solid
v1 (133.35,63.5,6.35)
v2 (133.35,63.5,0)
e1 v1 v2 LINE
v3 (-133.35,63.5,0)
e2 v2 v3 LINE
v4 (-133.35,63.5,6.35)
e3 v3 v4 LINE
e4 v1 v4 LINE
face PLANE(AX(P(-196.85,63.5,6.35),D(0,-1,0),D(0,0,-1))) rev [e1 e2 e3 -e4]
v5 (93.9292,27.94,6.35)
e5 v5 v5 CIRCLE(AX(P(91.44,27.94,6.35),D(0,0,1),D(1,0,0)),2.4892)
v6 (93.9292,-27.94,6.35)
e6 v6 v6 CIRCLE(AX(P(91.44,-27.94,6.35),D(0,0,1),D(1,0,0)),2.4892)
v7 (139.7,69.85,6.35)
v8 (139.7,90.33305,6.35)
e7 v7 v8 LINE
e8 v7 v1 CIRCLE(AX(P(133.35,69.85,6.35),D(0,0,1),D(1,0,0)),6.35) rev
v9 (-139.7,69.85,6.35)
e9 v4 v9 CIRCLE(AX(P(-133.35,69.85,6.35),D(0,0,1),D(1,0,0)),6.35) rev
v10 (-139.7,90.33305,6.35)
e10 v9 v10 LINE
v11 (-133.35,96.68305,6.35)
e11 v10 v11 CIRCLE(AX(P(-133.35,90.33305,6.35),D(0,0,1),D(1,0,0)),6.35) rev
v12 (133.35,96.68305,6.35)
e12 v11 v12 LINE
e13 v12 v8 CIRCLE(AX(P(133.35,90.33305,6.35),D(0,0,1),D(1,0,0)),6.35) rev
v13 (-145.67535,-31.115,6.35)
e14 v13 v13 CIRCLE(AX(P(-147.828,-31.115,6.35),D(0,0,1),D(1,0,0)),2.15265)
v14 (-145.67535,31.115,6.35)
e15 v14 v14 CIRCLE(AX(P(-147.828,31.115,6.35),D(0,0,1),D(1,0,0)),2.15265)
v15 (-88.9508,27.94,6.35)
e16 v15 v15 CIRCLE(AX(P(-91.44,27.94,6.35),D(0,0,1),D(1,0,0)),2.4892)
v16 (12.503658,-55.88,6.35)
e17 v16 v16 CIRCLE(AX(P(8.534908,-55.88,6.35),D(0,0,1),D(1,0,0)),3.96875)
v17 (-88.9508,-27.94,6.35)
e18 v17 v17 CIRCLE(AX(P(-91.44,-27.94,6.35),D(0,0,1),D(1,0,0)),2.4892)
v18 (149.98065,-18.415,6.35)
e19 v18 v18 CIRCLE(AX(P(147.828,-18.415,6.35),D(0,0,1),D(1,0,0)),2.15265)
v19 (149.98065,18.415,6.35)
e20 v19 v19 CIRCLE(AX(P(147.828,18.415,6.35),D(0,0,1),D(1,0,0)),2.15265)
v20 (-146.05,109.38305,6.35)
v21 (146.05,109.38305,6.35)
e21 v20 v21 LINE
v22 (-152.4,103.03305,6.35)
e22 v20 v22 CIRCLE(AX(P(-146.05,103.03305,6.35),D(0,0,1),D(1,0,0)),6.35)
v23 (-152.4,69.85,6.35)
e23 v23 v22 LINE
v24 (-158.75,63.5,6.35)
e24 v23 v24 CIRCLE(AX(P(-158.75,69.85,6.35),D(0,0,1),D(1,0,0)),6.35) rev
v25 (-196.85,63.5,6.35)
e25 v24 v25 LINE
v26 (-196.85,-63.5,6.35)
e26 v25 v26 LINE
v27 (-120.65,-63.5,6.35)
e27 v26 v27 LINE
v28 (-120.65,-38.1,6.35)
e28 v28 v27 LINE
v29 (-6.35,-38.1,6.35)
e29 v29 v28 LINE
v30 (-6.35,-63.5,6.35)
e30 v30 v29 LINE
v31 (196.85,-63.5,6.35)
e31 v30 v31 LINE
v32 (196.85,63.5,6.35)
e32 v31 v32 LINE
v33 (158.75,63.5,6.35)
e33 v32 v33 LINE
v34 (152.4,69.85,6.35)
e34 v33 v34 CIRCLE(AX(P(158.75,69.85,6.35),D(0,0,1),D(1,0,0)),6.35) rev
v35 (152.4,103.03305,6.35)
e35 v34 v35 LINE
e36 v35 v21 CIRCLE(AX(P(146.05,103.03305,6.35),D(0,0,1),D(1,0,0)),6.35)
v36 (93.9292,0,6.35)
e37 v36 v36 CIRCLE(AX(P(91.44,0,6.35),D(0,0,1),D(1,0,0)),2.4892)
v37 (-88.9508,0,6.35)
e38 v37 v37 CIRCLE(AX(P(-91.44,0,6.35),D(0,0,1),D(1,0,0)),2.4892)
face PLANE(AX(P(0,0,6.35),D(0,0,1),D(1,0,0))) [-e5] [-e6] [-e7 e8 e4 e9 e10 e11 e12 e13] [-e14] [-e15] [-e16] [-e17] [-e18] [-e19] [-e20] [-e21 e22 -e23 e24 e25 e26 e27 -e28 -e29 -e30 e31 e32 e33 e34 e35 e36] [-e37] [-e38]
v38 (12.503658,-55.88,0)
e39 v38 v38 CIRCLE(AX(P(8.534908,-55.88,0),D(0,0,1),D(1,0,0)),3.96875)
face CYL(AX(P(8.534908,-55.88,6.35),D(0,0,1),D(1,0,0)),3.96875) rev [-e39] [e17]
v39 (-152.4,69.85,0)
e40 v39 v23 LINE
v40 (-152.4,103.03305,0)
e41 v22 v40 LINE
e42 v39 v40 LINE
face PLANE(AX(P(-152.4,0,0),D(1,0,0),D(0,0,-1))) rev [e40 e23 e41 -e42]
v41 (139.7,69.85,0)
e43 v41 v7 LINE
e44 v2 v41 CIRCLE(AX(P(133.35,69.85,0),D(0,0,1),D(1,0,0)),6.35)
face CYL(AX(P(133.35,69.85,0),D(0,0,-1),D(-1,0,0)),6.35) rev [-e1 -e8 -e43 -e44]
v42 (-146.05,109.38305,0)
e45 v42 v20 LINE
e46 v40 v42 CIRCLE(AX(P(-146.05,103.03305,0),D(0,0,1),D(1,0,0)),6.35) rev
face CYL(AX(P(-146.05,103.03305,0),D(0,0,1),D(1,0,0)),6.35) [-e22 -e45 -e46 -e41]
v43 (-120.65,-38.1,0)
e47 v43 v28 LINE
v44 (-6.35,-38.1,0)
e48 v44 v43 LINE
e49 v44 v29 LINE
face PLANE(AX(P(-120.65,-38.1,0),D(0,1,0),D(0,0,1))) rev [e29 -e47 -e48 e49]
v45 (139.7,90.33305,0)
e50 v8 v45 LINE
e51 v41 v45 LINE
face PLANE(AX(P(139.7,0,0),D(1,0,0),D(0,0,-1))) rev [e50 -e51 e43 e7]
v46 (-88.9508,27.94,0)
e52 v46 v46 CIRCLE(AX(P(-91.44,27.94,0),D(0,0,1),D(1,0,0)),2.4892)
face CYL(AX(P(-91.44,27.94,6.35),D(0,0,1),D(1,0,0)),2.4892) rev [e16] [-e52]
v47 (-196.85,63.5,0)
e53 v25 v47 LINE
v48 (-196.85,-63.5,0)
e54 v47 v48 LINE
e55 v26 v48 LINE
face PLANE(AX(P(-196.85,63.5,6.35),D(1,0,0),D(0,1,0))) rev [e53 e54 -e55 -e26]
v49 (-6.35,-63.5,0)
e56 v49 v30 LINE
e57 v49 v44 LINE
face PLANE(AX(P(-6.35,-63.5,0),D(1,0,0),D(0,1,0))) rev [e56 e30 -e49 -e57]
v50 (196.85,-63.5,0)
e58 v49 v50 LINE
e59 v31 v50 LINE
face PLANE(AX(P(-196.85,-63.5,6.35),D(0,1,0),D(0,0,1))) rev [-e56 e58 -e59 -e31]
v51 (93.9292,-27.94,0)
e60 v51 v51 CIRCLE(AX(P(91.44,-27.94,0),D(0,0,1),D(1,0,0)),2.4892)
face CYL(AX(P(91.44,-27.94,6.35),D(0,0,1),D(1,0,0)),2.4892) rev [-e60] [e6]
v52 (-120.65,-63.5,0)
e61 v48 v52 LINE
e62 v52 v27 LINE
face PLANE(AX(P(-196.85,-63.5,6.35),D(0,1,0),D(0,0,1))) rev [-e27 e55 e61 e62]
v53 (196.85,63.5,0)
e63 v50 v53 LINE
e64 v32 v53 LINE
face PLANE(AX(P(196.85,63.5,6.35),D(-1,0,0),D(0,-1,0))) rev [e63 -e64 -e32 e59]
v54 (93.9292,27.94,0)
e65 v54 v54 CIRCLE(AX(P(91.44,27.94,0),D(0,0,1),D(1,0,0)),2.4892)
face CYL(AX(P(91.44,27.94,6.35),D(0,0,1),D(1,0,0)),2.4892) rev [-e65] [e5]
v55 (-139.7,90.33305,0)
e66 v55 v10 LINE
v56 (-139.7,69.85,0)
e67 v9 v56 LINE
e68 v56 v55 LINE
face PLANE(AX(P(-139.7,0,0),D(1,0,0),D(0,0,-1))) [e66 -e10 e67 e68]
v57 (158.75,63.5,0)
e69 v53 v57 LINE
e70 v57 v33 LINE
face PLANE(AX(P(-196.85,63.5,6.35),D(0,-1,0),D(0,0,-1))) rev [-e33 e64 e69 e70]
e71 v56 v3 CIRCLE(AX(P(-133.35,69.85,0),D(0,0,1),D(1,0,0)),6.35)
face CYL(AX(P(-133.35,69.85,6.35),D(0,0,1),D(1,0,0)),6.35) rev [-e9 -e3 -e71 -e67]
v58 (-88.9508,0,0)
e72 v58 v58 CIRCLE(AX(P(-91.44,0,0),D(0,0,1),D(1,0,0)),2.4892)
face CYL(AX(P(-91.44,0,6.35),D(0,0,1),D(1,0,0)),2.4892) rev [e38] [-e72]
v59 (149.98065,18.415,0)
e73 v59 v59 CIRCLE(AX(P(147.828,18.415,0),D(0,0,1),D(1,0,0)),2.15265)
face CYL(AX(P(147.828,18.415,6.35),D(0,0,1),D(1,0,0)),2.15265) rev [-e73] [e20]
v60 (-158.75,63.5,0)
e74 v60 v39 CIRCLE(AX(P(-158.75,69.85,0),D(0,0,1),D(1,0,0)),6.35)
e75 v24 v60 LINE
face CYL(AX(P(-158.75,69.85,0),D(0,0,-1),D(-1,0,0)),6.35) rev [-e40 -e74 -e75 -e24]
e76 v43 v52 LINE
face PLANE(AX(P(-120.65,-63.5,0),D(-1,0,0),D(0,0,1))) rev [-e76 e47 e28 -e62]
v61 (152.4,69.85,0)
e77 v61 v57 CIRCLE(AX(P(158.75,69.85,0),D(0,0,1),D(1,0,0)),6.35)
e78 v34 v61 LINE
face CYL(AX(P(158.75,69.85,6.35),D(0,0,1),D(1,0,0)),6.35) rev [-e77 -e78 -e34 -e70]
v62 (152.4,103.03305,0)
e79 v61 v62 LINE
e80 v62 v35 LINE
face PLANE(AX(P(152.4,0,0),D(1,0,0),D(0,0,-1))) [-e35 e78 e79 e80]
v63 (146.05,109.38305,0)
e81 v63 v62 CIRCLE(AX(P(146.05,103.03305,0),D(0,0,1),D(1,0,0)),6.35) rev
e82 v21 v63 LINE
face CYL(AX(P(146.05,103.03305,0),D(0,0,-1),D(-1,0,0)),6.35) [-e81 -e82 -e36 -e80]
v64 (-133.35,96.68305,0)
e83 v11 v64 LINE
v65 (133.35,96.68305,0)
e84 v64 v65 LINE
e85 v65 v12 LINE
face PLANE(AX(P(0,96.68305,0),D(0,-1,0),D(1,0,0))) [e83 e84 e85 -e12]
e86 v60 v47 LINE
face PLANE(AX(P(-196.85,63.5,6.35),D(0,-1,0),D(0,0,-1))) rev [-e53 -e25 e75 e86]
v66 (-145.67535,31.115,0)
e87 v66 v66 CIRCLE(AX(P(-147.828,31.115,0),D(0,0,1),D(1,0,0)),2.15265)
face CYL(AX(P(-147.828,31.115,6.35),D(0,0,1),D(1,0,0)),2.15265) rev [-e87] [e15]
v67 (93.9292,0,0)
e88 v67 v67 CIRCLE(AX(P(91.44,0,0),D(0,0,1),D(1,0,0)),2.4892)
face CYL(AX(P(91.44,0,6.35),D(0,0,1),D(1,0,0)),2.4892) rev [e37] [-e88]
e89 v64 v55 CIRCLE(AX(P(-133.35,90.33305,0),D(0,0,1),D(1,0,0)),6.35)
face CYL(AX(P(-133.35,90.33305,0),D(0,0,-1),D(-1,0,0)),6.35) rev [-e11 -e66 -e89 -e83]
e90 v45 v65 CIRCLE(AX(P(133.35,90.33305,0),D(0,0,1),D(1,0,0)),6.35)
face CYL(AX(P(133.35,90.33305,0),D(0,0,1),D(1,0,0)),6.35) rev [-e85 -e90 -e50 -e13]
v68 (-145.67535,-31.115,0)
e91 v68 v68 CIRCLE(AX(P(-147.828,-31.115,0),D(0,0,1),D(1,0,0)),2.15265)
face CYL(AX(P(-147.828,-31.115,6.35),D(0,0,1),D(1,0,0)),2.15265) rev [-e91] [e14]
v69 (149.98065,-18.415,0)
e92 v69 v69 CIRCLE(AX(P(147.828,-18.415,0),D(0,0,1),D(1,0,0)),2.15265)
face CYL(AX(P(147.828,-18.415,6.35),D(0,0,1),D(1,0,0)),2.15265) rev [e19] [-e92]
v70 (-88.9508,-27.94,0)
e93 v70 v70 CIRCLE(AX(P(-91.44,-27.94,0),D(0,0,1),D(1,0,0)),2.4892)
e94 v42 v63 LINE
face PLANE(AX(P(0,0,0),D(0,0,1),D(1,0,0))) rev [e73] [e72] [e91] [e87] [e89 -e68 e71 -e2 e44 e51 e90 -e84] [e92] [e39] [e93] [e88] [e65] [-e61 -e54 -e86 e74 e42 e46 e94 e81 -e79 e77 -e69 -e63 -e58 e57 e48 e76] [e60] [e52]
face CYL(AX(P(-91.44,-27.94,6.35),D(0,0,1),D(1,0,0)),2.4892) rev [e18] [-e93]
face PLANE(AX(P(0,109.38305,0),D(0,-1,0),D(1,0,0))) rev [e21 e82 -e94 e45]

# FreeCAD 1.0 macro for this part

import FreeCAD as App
import Part
import Sketcher
from FreeCAD import Vector
Q = App.Units.Quantity


def edges_at(feature, points):
    """Names of the edges that pass closest to the given points."""
    edges = feature.Shape.Edges
    near = lambda p: min(range(len(edges)), key=lambda i: edges[i].distToShape(Part.Vertex(*p))[0])
    return sorted({f"Edge{near(p) + 1}" for p in points})

doc = App.newDocument("Part")
body = doc.addObject("PartDesign::Body", "Body")

sketch1 = body.newObject("Sketcher::SketchObject", "Sketch")
sketch1.AttachmentSupport = (doc.getObject("XY_Plane"), [""])
sketch1.MapMode = "FlatFace"
sketch1.addGeometry(Part.LineSegment(Vector(-197, 64, 0), Vector(-197, -64, 0)), False)
sketch1.addGeometry(Part.LineSegment(Vector(-197, -64, 0), Vector(197, -64, 0)), False)
sketch1.addGeometry(Part.LineSegment(Vector(197, -64, 0), Vector(197, 64, 0)), False)
sketch1.addGeometry(Part.LineSegment(Vector(197, 64, 0), Vector(-197, 64, 0)), False)
sketch1.addConstraint(Sketcher.Constraint("Coincident", 0, 2, 1, 1))
sketch1.addConstraint(Sketcher.Constraint("Coincident", 1, 2, 2, 1))
sketch1.addConstraint(Sketcher.Constraint("Coincident", 2, 2, 3, 1))
sketch1.addConstraint(Sketcher.Constraint("Coincident", 3, 2, 0, 1))
sketch1.addConstraint(Sketcher.Constraint("Vertical", 0))
sketch1.addConstraint(Sketcher.Constraint("Horizontal", 1))
sketch1.addConstraint(Sketcher.Constraint("Vertical", 2))
sketch1.addConstraint(Sketcher.Constraint("Horizontal", 3))
sketch1.addConstraint(Sketcher.Constraint("Symmetric", 0, 2, 2, 2, -1, 1))
sketch1.addConstraint(Sketcher.Constraint("DistanceY", 0, 2, 0, 1, Q("5 in")))
sketch1.addConstraint(Sketcher.Constraint("DistanceX", 1, 1, 1, 2, Q("15.5 in")))
pad1 = body.newObject("PartDesign::Pad", "Pad")
pad1.Profile = sketch1
pad1.Length = Q("0.25 in")

sketch2 = body.newObject("Sketcher::SketchObject", "Sketch001")
sketch2.AttachmentSupport = (doc.getObject("XY_Plane"), [""])
sketch2.MapMode = "FlatFace"
sketch2.AttachmentOffset = App.Placement(Vector(0, 0, 0.25 * 25.4), App.Rotation())
sketch2.addGeometry(Part.Circle(Vector(-91.4, 27.9, 0), Vector(0, 0, 1), 2.5), False)
sketch2.addGeometry(Part.Circle(Vector(-91.4, -27.9, 0), Vector(0, 0, 1), 2.5), False)
sketch2.addGeometry(Part.Circle(Vector(91.4, 27.9, 0), Vector(0, 0, 1), 2.5), False)
sketch2.addGeometry(Part.Circle(Vector(91.4, -27.9, 0), Vector(0, 0, 1), 2.5), False)
sketch2.addGeometry(Part.Circle(Vector(-91.4, 0, 0), Vector(0, 0, 1), 2.5), False)
sketch2.addGeometry(Part.Circle(Vector(91.4, 0, 0), Vector(0, 0, 1), 2.5), False)
sketch2.addConstraint(Sketcher.Constraint("Equal", 0, 1))
sketch2.addConstraint(Sketcher.Constraint("Equal", 1, 2))
sketch2.addConstraint(Sketcher.Constraint("Equal", 2, 3))
sketch2.addConstraint(Sketcher.Constraint("Equal", 3, 4))
sketch2.addConstraint(Sketcher.Constraint("Equal", 4, 5))
sketch2.addConstraint(Sketcher.Constraint("Symmetric", 1, 3, 2, 3, -1, 1))
sketch2.addConstraint(Sketcher.Constraint("Symmetric", 0, 3, 3, 3, -1, 1))
sketch2.addConstraint(Sketcher.Constraint("Symmetric", 4, 3, 5, 3, -1, 1))
sketch2.addConstraint(Sketcher.Constraint("Symmetric", 0, 3, 2, 3, -2))
sketch2.addConstraint(Sketcher.Constraint("PointOnObject", 4, 3, -1))
sketch2.addConstraint(Sketcher.Constraint("Vertical", 1, 3, 4, 3))
sketch2.addConstraint(Sketcher.Constraint("Diameter", 0, Q("0.196 in")))
sketch2.addConstraint(Sketcher.Constraint("DistanceX", 0, 3, -1, 1, Q("3.6 in")))
sketch2.addConstraint(Sketcher.Constraint("DistanceY", -1, 1, 0, 3, Q("1.1 in")))
doc.recompute()
hole = body.newObject("PartDesign::Hole", "Hole")
hole.Profile = sketch2
hole.ThreadType = "None"
hole.Diameter = Q("0.196 in")
hole.DepthType = "ThroughAll"

sketch3 = body.newObject("Sketcher::SketchObject", "Sketch002")
sketch3.AttachmentSupport = (doc.getObject("XY_Plane"), [""])
sketch3.MapMode = "FlatFace"
sketch3.AttachmentOffset = App.Placement(Vector(0, 0, 0.25 * 25.4), App.Rotation())
sketch3.addGeometry(Part.LineSegment(Vector(-152, 64, 0), Vector(-140, 64, 0)), False)
sketch3.addGeometry(Part.LineSegment(Vector(-140, 64, 0), Vector(-140, 97, 0)), False)
sketch3.addGeometry(Part.LineSegment(Vector(-140, 97, 0), Vector(140, 97, 0)), False)
sketch3.addGeometry(Part.LineSegment(Vector(140, 97, 0), Vector(140, 64, 0)), False)
sketch3.addGeometry(Part.LineSegment(Vector(140, 64, 0), Vector(152, 64, 0)), False)
sketch3.addGeometry(Part.LineSegment(Vector(152, 64, 0), Vector(152, 109, 0)), False)
sketch3.addGeometry(Part.LineSegment(Vector(152, 109, 0), Vector(-152, 109, 0)), False)
sketch3.addGeometry(Part.LineSegment(Vector(-152, 109, 0), Vector(-152, 64, 0)), False)
sketch3.addConstraint(Sketcher.Constraint("Coincident", 0, 2, 1, 1))
sketch3.addConstraint(Sketcher.Constraint("Coincident", 1, 2, 2, 1))
sketch3.addConstraint(Sketcher.Constraint("Coincident", 2, 2, 3, 1))
sketch3.addConstraint(Sketcher.Constraint("Coincident", 3, 2, 4, 1))
sketch3.addConstraint(Sketcher.Constraint("Coincident", 4, 2, 5, 1))
sketch3.addConstraint(Sketcher.Constraint("Coincident", 5, 2, 6, 1))
sketch3.addConstraint(Sketcher.Constraint("Coincident", 6, 2, 7, 1))
sketch3.addConstraint(Sketcher.Constraint("Coincident", 7, 2, 0, 1))
sketch3.addConstraint(Sketcher.Constraint("Horizontal", 0))
sketch3.addConstraint(Sketcher.Constraint("Vertical", 1))
sketch3.addConstraint(Sketcher.Constraint("Horizontal", 2))
sketch3.addConstraint(Sketcher.Constraint("Vertical", 3))
sketch3.addConstraint(Sketcher.Constraint("Horizontal", 4))
sketch3.addConstraint(Sketcher.Constraint("Vertical", 5))
sketch3.addConstraint(Sketcher.Constraint("Horizontal", 6))
sketch3.addConstraint(Sketcher.Constraint("Vertical", 7))
sketch3.addConstraint(Sketcher.Constraint("Symmetric", 0, 2, 3, 2, -2))
sketch3.addConstraint(Sketcher.Constraint("Equal", 0, 4))
sketch3.addConstraint(Sketcher.Constraint("DistanceX", 2, 1, 2, 2, Q("11 in")))
sketch3.addConstraint(Sketcher.Constraint("DistanceX", 6, 2, 6, 1, Q("12 in")))
sketch3.addConstraint(Sketcher.Constraint("DistanceY", -1, 1, 0, 2, Q("2.5 in")))
sketch3.addConstraint(Sketcher.Constraint("DistanceY", 2, 2, 5, 2, Q("0.5 in")))
sketch3.addConstraint(Sketcher.Constraint("DistanceY", 1, 1, 1, 2, 33.18305))
pad2 = body.newObject("PartDesign::Pad", "Pad001")
pad2.Profile = sketch3
pad2.Length = Q("0.25 in")
pad2.Reversed = True
doc.recompute()

fillet = body.newObject("PartDesign::Fillet", "Fillet")
fillet.Base = (pad2, edges_at(pad2, [
    (139.7, 96.683, 3.175),
    (-139.7, 96.683, 3.175),
    (-139.7, 63.5, 3.175),
    (-152.4, 63.5, 3.175),
    (-152.4, 109.383, 3.175),
    (152.4, 109.383, 3.175),
    (152.4, 63.5, 3.175),
    (139.7, 63.5, 3.175),
]))
fillet.Radius = Q("0.25 in")

sketch4 = body.newObject("Sketcher::SketchObject", "Sketch003")
sketch4.AttachmentSupport = (doc.getObject("XY_Plane"), [""])
sketch4.MapMode = "FlatFace"
sketch4.AttachmentOffset = App.Placement(Vector(0, 0, 0.25 * 25.4), App.Rotation())
sketch4.addGeometry(Part.Circle(Vector(-147.8, 31.1, 0), Vector(0, 0, 1), 2.2), False)
sketch4.addGeometry(Part.Circle(Vector(-147.8, -31.1, 0), Vector(0, 0, 1), 2.2), False)
sketch4.addGeometry(Part.Circle(Vector(147.8, 18.4, 0), Vector(0, 0, 1), 2.2), False)
sketch4.addGeometry(Part.Circle(Vector(147.8, -18.4, 0), Vector(0, 0, 1), 2.2), False)
sketch4.addConstraint(Sketcher.Constraint("Equal", 0, 1))
sketch4.addConstraint(Sketcher.Constraint("Equal", 1, 2))
sketch4.addConstraint(Sketcher.Constraint("Equal", 2, 3))
sketch4.addConstraint(Sketcher.Constraint("Symmetric", 0, 3, 1, 3, -1))
sketch4.addConstraint(Sketcher.Constraint("Symmetric", 2, 3, 3, 3, -1))
sketch4.addConstraint(Sketcher.Constraint("Diameter", 0, Q("0.1695 in")))
sketch4.addConstraint(Sketcher.Constraint("DistanceY", 2, 3, 0, 3, Q("0.5 in")))
sketch4.addConstraint(Sketcher.Constraint("DistanceX", 0, 3, -1, 1, Q("5.82 in")))
sketch4.addConstraint(Sketcher.Constraint("DistanceX", -1, 1, 2, 3, Q("5.82 in")))
sketch4.addConstraint(Sketcher.Constraint("DistanceY", 1, 3, 0, 3, Q("2.45 in")))
doc.recompute()
hole2 = body.newObject("PartDesign::Hole", "Hole001")
hole2.Profile = sketch4
hole2.ThreadType = "None"
hole2.Diameter = Q("0.1695 in")
hole2.DepthType = "ThroughAll"

sketch5 = body.newObject("Sketcher::SketchObject", "Sketch004")
sketch5.AttachmentSupport = (doc.getObject("XY_Plane"), [""])
sketch5.MapMode = "FlatFace"
sketch5.AttachmentOffset = App.Placement(Vector(0, 0, 0.25 * 25.4), App.Rotation())
sketch5.addGeometry(Part.LineSegment(Vector(-121, -38, 0), Vector(-121, -64, 0)), False)
sketch5.addGeometry(Part.LineSegment(Vector(-121, -64, 0), Vector(-6, -64, 0)), False)
sketch5.addGeometry(Part.LineSegment(Vector(-6, -64, 0), Vector(-6, -38, 0)), False)
sketch5.addGeometry(Part.LineSegment(Vector(-6, -38, 0), Vector(-121, -38, 0)), False)
sketch5.addConstraint(Sketcher.Constraint("Coincident", 0, 2, 1, 1))
sketch5.addConstraint(Sketcher.Constraint("Coincident", 1, 2, 2, 1))
sketch5.addConstraint(Sketcher.Constraint("Coincident", 2, 2, 3, 1))
sketch5.addConstraint(Sketcher.Constraint("Coincident", 3, 2, 0, 1))
sketch5.addConstraint(Sketcher.Constraint("Vertical", 0))
sketch5.addConstraint(Sketcher.Constraint("Horizontal", 1))
sketch5.addConstraint(Sketcher.Constraint("Vertical", 2))
sketch5.addConstraint(Sketcher.Constraint("Horizontal", 3))
sketch5.addConstraint(Sketcher.Constraint("DistanceY", 0, 2, 0, 1, Q("1 in")))
sketch5.addConstraint(Sketcher.Constraint("DistanceX", 1, 1, 1, 2, Q("4.5 in")))
sketch5.addConstraint(Sketcher.Constraint("DistanceY", 0, 2, -1, 1, Q("2.5 in")))
sketch5.addConstraint(Sketcher.Constraint("DistanceX", 0, 2, -1, 1, Q("4.75 in")))
pocket1 = body.newObject("PartDesign::Pocket", "Pocket")
pocket1.Profile = sketch5
pocket1.Type = "ThroughAll"

sketch6 = body.newObject("Sketcher::SketchObject", "Sketch005")
sketch6.AttachmentSupport = (doc.getObject("XY_Plane"), [""])
sketch6.MapMode = "FlatFace"
sketch6.AttachmentOffset = App.Placement(Vector(0, 0, 0.25 * 25.4), App.Rotation())
sketch6.addGeometry(Part.Circle(Vector(8.5, -55.9, 0), Vector(0, 0, 1), 4), False)
sketch6.addConstraint(Sketcher.Constraint("Diameter", 0, Q("0.3125 in")))
sketch6.addConstraint(Sketcher.Constraint("DistanceY", 0, 3, -1, 1, Q("2.2 in")))
sketch6.addConstraint(Sketcher.Constraint("DistanceX", -1, 1, 0, 3, 8.534908))
doc.recompute()
hole3 = body.newObject("PartDesign::Hole", "Hole002")
hole3.Profile = sketch6
hole3.ThreadType = "None"
hole3.Diameter = Q("0.3125 in")
hole3.DepthType = "ThroughAll"

doc.recompute()
